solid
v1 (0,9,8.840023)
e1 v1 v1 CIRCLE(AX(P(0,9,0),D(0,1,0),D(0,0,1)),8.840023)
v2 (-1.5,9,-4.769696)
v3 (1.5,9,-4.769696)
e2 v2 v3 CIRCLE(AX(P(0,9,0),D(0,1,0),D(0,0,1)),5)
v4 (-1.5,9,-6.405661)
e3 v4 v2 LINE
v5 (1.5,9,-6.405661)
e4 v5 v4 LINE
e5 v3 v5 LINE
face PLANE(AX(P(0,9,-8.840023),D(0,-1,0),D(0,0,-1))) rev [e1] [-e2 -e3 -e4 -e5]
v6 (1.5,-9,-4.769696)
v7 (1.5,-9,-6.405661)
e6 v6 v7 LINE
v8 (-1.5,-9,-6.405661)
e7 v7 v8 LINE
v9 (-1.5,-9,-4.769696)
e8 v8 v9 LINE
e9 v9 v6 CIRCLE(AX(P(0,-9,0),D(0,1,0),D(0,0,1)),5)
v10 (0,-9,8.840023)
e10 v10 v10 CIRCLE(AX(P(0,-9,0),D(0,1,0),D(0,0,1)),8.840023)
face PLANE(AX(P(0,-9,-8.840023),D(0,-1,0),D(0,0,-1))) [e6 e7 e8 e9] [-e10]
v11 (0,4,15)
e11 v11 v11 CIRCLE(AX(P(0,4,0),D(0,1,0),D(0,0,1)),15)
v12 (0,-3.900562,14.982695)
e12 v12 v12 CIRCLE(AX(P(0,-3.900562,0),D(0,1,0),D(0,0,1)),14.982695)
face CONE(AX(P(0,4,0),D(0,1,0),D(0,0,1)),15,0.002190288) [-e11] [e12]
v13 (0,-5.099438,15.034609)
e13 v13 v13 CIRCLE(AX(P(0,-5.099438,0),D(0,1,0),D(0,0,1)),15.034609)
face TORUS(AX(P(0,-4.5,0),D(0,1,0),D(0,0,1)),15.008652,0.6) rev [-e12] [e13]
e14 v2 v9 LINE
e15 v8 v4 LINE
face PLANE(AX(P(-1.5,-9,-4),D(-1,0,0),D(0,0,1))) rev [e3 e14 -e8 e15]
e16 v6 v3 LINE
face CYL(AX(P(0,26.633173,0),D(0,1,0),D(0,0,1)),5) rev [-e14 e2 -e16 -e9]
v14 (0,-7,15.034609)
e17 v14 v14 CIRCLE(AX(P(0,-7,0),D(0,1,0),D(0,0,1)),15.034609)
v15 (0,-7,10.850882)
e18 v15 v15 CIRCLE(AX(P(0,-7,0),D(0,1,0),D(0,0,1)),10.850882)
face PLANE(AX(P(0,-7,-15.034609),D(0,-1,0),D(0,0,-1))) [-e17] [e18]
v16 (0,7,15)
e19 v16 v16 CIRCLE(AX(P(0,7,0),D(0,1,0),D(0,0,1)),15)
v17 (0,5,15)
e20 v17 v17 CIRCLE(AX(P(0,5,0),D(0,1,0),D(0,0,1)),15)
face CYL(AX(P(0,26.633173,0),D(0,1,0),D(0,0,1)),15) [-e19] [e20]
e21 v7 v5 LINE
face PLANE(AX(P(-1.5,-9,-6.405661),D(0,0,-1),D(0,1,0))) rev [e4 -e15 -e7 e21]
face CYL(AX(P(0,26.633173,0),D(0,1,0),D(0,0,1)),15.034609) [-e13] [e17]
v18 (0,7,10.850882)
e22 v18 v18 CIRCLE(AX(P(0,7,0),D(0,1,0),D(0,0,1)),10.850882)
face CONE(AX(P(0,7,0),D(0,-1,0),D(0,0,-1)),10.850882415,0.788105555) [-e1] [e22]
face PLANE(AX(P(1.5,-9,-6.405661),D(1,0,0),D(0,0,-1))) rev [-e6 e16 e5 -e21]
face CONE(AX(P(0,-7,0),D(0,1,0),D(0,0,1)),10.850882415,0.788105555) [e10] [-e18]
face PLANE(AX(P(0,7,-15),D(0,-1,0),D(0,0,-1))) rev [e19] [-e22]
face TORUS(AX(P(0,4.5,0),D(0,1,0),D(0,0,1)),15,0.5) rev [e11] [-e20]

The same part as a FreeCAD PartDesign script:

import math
import FreeCAD as App
import Part
import Sketcher


def add_polygon(sketch, points):
    """Adds a closed chain of lines whose ends are joined by coincident constraints."""
    first, n = sketch.GeometryCount, len(points)
    for a, b in zip(points, points[1:] + points[:1]):
        sketch.addGeometry(Part.LineSegment(App.Vector(*a, 0), App.Vector(*b, 0)), False)
    for i in range(n):
        sketch.addConstraint(Sketcher.Constraint("Coincident", first + i, 2, first + (i + 1) % n, 1))

doc = App.newDocument("Part")
body = doc.addObject("PartDesign::Body", "Body")

sketch1 = body.newObject("Sketcher::SketchObject", "Sketch")
sketch1.AttachmentSupport = (doc.getObject("YZ_Plane"), [""])
sketch1.MapMode = "FlatFace"
sketch1.addGeometry(Part.LineSegment(App.Vector(5, -15, 0), App.Vector(7, -15, 0)), False)
sketch1.addGeometry(Part.LineSegment(App.Vector(7, -15, 0), App.Vector(7, -10.9, 0)), False)
sketch1.addGeometry(Part.LineSegment(App.Vector(7, -10.9, 0), App.Vector(9, -8.8, 0)), False)
sketch1.addGeometry(Part.LineSegment(App.Vector(9, -8.8, 0), App.Vector(9, -5, 0)), False)
sketch1.addGeometry(Part.LineSegment(App.Vector(9, -5, 0), App.Vector(-9, -5, 0)), False)
sketch1.addGeometry(Part.LineSegment(App.Vector(-9, -5, 0), App.Vector(-9, -8.8, 0)), False)
sketch1.addGeometry(Part.LineSegment(App.Vector(-9, -8.8, 0), App.Vector(-7, -10.9, 0)), False)
sketch1.addGeometry(Part.LineSegment(App.Vector(-7, -10.9, 0), App.Vector(-7, -15, 0)), False)
sketch1.addGeometry(Part.LineSegment(App.Vector(-7, -15, 0), App.Vector(-5.1, -15, 0)), False)
sketch1.addGeometry(Part.ArcOfCircle(Part.Circle(App.Vector(-4.5, -15, 0), App.Vector(0, 0, 1), 0.6), math.radians(2), math.radians(182)), False)
sketch1.addGeometry(Part.LineSegment(App.Vector(-3.9, -15, 0), App.Vector(4, -15, 0)), False)
sketch1.addGeometry(Part.ArcOfCircle(Part.Circle(App.Vector(4.5, -15, 0), App.Vector(0, 0, 1), 0.5), math.radians(0), math.radians(180)), False)
sketch1.addConstraint(Sketcher.Constraint("Coincident", 0, 2, 1, 1))
sketch1.addConstraint(Sketcher.Constraint("Coincident", 1, 2, 2, 1))
sketch1.addConstraint(Sketcher.Constraint("Coincident", 2, 2, 3, 1))
sketch1.addConstraint(Sketcher.Constraint("Coincident", 3, 2, 4, 1))
sketch1.addConstraint(Sketcher.Constraint("Coincident", 4, 2, 5, 1))
sketch1.addConstraint(Sketcher.Constraint("Coincident", 5, 2, 6, 1))
sketch1.addConstraint(Sketcher.Constraint("Coincident", 6, 2, 7, 1))
sketch1.addConstraint(Sketcher.Constraint("Coincident", 7, 2, 8, 1))
sketch1.addConstraint(Sketcher.Constraint("Coincident", 8, 2, 9, 2))
sketch1.addConstraint(Sketcher.Constraint("Coincident", 9, 1, 10, 1))
sketch1.addConstraint(Sketcher.Constraint("Coincident", 10, 2, 11, 2))
sketch1.addConstraint(Sketcher.Constraint("Coincident", 11, 1, 0, 1))
sketch1.addConstraint(Sketcher.Constraint("Horizontal", 0))
sketch1.addConstraint(Sketcher.Constraint("Vertical", 1))
sketch1.addConstraint(Sketcher.Constraint("Vertical", 3))
sketch1.addConstraint(Sketcher.Constraint("Horizontal", 4))
sketch1.addConstraint(Sketcher.Constraint("Vertical", 5))
sketch1.addConstraint(Sketcher.Constraint("Vertical", 7))
sketch1.addConstraint(Sketcher.Constraint("Horizontal", 8))
sketch1.addConstraint(Sketcher.Constraint("Symmetric", 2, 2, 5, 2, -2))
sketch1.addConstraint(Sketcher.Constraint("Symmetric", 1, 2, 6, 2, -2))
sketch1.addConstraint(Sketcher.Constraint("Horizontal", 11, 3, 0, 2))
sketch1.addConstraint(Sketcher.Constraint("Horizontal", 0, 2, 10, 2))
sketch1.addConstraint(Sketcher.Constraint("Radius", 9, 0.6))
sketch1.addConstraint(Sketcher.Constraint("Radius", 11, 0.5))
sketch1.addConstraint(Sketcher.Constraint("DistanceX", 0, 1, 0, 2, 2.0))
sketch1.addConstraint(Sketcher.Constraint("DistanceX", 4, 2, 4, 1, 18.0))
sketch1.addConstraint(Sketcher.Constraint("DistanceY", 11, 3, -1, 1, 15.0))
sketch1.addConstraint(Sketcher.Constraint("DistanceX", -1, 1, 0, 2, 7.0))
sketch1.addConstraint(Sketcher.Constraint("DistanceY", 3, 2, -1, 1, 5.0))
sketch1.addConstraint(Sketcher.Constraint("DistanceX", 9, 3, 11, 3, 9.0))
sketch1.addConstraint(Sketcher.Constraint("DistanceX", 8, 1, 8, 2, 1.900562))
sketch1.addConstraint(Sketcher.Constraint("Distance", 10, 7.900581))
sketch1.addConstraint(Sketcher.Constraint("DistanceY", 1, 1, 1, 2, 4.149118))
sketch1.addConstraint(Sketcher.Constraint("DistanceY", 3, 1, 3, 2, 3.840023))
sketch1.addConstraint(Sketcher.Constraint("DistanceY", 7, 2, 7, 1, 4.183727))
revolution = body.newObject("PartDesign::Revolution", "Revolution")
revolution.Profile = sketch1
revolution.ReferenceAxis = (sketch1, ["H_Axis"])
revolution.Angle = 360

sketch2 = body.newObject("Sketcher::SketchObject", "Sketch001")
sketch2.AttachmentSupport = (doc.getObject("XZ_Plane"), [""])
sketch2.MapMode = "FlatFace"
sketch2.AttachmentOffset = App.Placement(App.Vector(0, 0, -9), App.Rotation())
add_polygon(sketch2, [(-1.5, -6.4), (-1.5, -4), (1.5, -4), (1.5, -6.4)])
sketch2.addConstraint(Sketcher.Constraint("Vertical", 0))
sketch2.addConstraint(Sketcher.Constraint("Horizontal", 1))
sketch2.addConstraint(Sketcher.Constraint("Vertical", 2))
sketch2.addConstraint(Sketcher.Constraint("Horizontal", 3))
sketch2.addConstraint(Sketcher.Constraint("DistanceX", 1, 1, 1, 2, 3.0))
sketch2.addConstraint(Sketcher.Constraint("DistanceY", 0, 2, -1, 1, 4.0))
sketch2.addConstraint(Sketcher.Constraint("DistanceX", 0, 2, -1, 1, 1.5))
sketch2.addConstraint(Sketcher.Constraint("DistanceY", 0, 1, 0, 2, 2.405661))
pocket1 = body.newObject("PartDesign::Pocket", "Pocket")
pocket1.Profile = sketch2
pocket1.Type = "ThroughAll"
pocket1.Reversed = True

doc.recompute()
